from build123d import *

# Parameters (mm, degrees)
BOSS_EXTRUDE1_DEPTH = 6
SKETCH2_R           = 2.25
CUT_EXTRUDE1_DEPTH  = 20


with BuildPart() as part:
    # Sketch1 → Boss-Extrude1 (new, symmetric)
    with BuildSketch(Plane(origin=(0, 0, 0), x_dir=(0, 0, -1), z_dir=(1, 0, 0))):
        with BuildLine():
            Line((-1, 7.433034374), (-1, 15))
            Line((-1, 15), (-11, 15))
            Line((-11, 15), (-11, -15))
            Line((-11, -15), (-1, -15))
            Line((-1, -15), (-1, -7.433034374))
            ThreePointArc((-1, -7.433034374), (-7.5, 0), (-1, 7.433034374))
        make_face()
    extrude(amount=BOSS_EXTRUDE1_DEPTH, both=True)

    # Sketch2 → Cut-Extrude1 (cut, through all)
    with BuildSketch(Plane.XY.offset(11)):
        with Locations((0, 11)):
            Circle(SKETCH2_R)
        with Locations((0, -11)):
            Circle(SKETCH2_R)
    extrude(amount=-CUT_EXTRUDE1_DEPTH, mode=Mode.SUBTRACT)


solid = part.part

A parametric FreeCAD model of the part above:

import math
import FreeCAD as App
import Part
import Sketcher

doc = App.newDocument("Part")
body = doc.addObject("PartDesign::Body", "Body")

# Sketch on YZ plane
sketch1 = body.newObject("Sketcher::SketchObject", "Sketch")
sketch1.AttachmentSupport = (doc.getObject("YZ_Plane"), [""])
sketch1.MapMode = "FlatFace"
sketch1.addGeometry([
    Part.LineSegment(App.Vector(7, 1, 0), App.Vector(15, 1, 0)),  # 0
    Part.LineSegment(App.Vector(15, 1, 0), App.Vector(15, 11, 0)),  # 1
    Part.LineSegment(App.Vector(15, 11, 0), App.Vector(-15, 11, 0)),  # 2
    Part.LineSegment(App.Vector(-15, 11, 0), App.Vector(-15, 1, 0)),  # 3
    Part.LineSegment(App.Vector(-15, 1, 0), App.Vector(-7, 1, 0)),  # 4
    Part.ArcOfCircle(Part.Circle(App.Vector(0, 0, 0), App.Vector(0, 0, 1), 8), math.radians(8), math.radians(172)),  # 5
], False)
sketch1.addConstraint([
    Sketcher.Constraint("Coincident", 0, 2, 1, 1),
    Sketcher.Constraint("Coincident", 1, 2, 2, 1),
    Sketcher.Constraint("Coincident", 2, 2, 3, 1),
    Sketcher.Constraint("Coincident", 3, 2, 4, 1),
    Sketcher.Constraint("Coincident", 4, 2, 5, 2),
    Sketcher.Constraint("Coincident", 5, 1, 0, 1),
    Sketcher.Constraint("Horizontal", 0),
    Sketcher.Constraint("Vertical", 1),
    Sketcher.Constraint("Horizontal", 2),
    Sketcher.Constraint("Vertical", 3),
    Sketcher.Constraint("Horizontal", 4),
    Sketcher.Constraint("Coincident", 5, 3, -1, 1),
    Sketcher.Constraint("Symmetric", 0, 2, 3, 2, -2),
    Sketcher.Constraint("Radius", 5, 7.5),
    Sketcher.Constraint("DistanceX", 2, 2, 2, 1, 30.0),
    Sketcher.Constraint("DistanceY", 1, 1, 1, 2, 10.0),
    Sketcher.Constraint("DistanceY", -1, 1, 0, 2, 1.0),
])
pad1 = body.newObject("PartDesign::Pad", "Pad")
pad1.Profile = sketch1
pad1.Length = 12
pad1.Midplane = True

# Sketch on XY plane
sketch2 = body.newObject("Sketcher::SketchObject", "Sketch001")
sketch2.AttachmentSupport = (doc.getObject("XY_Plane"), [""])
sketch2.MapMode = "FlatFace"
sketch2.AttachmentOffset = App.Placement(App.Vector(0, 0, 11), App.Rotation())
sketch2.addGeometry([
    Part.Circle(App.Vector(0, 11, 0), App.Vector(0, 0, 1), 2.2),
    Part.Circle(App.Vector(0, -11, 0), App.Vector(0, 0, 1), 2.2),
], False)
sketch2.addConstraint([
    Sketcher.Constraint("Equal", 0, 1),
    Sketcher.Constraint("Symmetric", 0, 3, 1, 3, -1, 1),
    Sketcher.Constraint("PointOnObject", 0, 3, -2),
    Sketcher.Constraint("Diameter", 0, 4.5),
    Sketcher.Constraint("DistanceY", -1, 1, 0, 3, 11.0),
])
pocket1 = body.newObject("PartDesign::Pocket", "Pocket")
pocket1.Profile = sketch2
pocket1.Type = "ThroughAll"

doc.recompute()
